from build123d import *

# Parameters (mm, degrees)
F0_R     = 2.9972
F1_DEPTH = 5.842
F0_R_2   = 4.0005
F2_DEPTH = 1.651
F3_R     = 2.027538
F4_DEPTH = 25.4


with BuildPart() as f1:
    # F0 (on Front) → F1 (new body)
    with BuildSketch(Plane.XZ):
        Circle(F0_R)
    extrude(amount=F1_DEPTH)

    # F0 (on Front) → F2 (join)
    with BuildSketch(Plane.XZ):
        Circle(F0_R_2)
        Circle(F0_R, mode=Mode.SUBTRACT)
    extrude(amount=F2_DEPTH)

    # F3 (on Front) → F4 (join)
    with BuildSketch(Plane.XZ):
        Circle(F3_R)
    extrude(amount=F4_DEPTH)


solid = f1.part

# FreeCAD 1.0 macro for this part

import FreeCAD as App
import Part
import Sketcher

V = App.Vector
Q = App.Units.Quantity

doc = App.newDocument("Part")
params = doc.addObject("Spreadsheet::Sheet", "Params")
for row, (alias, value) in enumerate([
    ("sketch1_diameter", "0.236 in"),
    ("pad1_length", "0.23 in"),
    ("sketch2_diameter", "0.315 in"),
    ("sketch2_diameter2", "0.236 in"),
    ("pad2_length", "0.065 in"),
    ("pad3_length", "1 in"),
], start=1):
    params.set(f"A{row}", alias)
    params.set(f"B{row}", "=" + value)
    params.setAlias(f"B{row}", alias)

body = doc.addObject("PartDesign::Body", "Body")

# Sketch on XZ plane
sketch1 = body.newObject("Sketcher::SketchObject", "Sketch")
sketch1.AttachmentSupport = (doc.getObject("XZ_Plane"), [""])
sketch1.MapMode = "FlatFace"
sketch1.addGeometry(Part.Circle(V(0, 0, 0), V(0, 0, 1), 3), False)
sketch1.addConstraint([
    Sketcher.Constraint("Coincident", 0, 3, -1, 1),
    Sketcher.Constraint("Diameter", 0, Q("0.236 in")),
])
sketch1.setExpression("Constraints[1]", "Params.sketch1_diameter")
pad1 = body.newObject("PartDesign::Pad", "Pad")
pad1.Profile = sketch1
pad1.setExpression("Length", "Params.pad1_length")

# Sketch on XZ plane
sketch2 = body.newObject("Sketcher::SketchObject", "Sketch001")
sketch2.AttachmentSupport = (doc.getObject("XZ_Plane"), [""])
sketch2.MapMode = "FlatFace"
sketch2.addGeometry([
    Part.Circle(V(0, 0, 0), V(0, 0, 1), 4),
    Part.Circle(V(0, 0, 0), V(0, 0, 1), 3),
], False)
sketch2.addConstraint([
    Sketcher.Constraint("Coincident", 0, 3, -1, 1),
    Sketcher.Constraint("Coincident", 1, 3, -1, 1),
    Sketcher.Constraint("Diameter", 0, Q("0.315 in")),
    Sketcher.Constraint("Diameter", 1, Q("0.236 in")),
])
sketch2.setExpression("Constraints[2]", "Params.sketch2_diameter")
sketch2.setExpression("Constraints[3]", "Params.sketch2_diameter2")
pad2 = body.newObject("PartDesign::Pad", "Pad001")
pad2.Profile = sketch2
pad2.setExpression("Length", "Params.pad2_length")

# Sketch on XZ plane
sketch3 = body.newObject("Sketcher::SketchObject", "Sketch002")
sketch3.AttachmentSupport = (doc.getObject("XZ_Plane"), [""])
sketch3.MapMode = "FlatFace"
sketch3.addGeometry(Part.Circle(V(0, 0, 0), V(0, 0, 1), 2), False)
sketch3.addConstraint([
    Sketcher.Constraint("Coincident", 0, 3, -1, 1),
    Sketcher.Constraint("Diameter", 0, 4.055076),
])
pad3 = body.newObject("PartDesign::Pad", "Pad002")
pad3.Profile = sketch3
pad3.setExpression("Length", "Params.pad3_length")

doc.recompute()
